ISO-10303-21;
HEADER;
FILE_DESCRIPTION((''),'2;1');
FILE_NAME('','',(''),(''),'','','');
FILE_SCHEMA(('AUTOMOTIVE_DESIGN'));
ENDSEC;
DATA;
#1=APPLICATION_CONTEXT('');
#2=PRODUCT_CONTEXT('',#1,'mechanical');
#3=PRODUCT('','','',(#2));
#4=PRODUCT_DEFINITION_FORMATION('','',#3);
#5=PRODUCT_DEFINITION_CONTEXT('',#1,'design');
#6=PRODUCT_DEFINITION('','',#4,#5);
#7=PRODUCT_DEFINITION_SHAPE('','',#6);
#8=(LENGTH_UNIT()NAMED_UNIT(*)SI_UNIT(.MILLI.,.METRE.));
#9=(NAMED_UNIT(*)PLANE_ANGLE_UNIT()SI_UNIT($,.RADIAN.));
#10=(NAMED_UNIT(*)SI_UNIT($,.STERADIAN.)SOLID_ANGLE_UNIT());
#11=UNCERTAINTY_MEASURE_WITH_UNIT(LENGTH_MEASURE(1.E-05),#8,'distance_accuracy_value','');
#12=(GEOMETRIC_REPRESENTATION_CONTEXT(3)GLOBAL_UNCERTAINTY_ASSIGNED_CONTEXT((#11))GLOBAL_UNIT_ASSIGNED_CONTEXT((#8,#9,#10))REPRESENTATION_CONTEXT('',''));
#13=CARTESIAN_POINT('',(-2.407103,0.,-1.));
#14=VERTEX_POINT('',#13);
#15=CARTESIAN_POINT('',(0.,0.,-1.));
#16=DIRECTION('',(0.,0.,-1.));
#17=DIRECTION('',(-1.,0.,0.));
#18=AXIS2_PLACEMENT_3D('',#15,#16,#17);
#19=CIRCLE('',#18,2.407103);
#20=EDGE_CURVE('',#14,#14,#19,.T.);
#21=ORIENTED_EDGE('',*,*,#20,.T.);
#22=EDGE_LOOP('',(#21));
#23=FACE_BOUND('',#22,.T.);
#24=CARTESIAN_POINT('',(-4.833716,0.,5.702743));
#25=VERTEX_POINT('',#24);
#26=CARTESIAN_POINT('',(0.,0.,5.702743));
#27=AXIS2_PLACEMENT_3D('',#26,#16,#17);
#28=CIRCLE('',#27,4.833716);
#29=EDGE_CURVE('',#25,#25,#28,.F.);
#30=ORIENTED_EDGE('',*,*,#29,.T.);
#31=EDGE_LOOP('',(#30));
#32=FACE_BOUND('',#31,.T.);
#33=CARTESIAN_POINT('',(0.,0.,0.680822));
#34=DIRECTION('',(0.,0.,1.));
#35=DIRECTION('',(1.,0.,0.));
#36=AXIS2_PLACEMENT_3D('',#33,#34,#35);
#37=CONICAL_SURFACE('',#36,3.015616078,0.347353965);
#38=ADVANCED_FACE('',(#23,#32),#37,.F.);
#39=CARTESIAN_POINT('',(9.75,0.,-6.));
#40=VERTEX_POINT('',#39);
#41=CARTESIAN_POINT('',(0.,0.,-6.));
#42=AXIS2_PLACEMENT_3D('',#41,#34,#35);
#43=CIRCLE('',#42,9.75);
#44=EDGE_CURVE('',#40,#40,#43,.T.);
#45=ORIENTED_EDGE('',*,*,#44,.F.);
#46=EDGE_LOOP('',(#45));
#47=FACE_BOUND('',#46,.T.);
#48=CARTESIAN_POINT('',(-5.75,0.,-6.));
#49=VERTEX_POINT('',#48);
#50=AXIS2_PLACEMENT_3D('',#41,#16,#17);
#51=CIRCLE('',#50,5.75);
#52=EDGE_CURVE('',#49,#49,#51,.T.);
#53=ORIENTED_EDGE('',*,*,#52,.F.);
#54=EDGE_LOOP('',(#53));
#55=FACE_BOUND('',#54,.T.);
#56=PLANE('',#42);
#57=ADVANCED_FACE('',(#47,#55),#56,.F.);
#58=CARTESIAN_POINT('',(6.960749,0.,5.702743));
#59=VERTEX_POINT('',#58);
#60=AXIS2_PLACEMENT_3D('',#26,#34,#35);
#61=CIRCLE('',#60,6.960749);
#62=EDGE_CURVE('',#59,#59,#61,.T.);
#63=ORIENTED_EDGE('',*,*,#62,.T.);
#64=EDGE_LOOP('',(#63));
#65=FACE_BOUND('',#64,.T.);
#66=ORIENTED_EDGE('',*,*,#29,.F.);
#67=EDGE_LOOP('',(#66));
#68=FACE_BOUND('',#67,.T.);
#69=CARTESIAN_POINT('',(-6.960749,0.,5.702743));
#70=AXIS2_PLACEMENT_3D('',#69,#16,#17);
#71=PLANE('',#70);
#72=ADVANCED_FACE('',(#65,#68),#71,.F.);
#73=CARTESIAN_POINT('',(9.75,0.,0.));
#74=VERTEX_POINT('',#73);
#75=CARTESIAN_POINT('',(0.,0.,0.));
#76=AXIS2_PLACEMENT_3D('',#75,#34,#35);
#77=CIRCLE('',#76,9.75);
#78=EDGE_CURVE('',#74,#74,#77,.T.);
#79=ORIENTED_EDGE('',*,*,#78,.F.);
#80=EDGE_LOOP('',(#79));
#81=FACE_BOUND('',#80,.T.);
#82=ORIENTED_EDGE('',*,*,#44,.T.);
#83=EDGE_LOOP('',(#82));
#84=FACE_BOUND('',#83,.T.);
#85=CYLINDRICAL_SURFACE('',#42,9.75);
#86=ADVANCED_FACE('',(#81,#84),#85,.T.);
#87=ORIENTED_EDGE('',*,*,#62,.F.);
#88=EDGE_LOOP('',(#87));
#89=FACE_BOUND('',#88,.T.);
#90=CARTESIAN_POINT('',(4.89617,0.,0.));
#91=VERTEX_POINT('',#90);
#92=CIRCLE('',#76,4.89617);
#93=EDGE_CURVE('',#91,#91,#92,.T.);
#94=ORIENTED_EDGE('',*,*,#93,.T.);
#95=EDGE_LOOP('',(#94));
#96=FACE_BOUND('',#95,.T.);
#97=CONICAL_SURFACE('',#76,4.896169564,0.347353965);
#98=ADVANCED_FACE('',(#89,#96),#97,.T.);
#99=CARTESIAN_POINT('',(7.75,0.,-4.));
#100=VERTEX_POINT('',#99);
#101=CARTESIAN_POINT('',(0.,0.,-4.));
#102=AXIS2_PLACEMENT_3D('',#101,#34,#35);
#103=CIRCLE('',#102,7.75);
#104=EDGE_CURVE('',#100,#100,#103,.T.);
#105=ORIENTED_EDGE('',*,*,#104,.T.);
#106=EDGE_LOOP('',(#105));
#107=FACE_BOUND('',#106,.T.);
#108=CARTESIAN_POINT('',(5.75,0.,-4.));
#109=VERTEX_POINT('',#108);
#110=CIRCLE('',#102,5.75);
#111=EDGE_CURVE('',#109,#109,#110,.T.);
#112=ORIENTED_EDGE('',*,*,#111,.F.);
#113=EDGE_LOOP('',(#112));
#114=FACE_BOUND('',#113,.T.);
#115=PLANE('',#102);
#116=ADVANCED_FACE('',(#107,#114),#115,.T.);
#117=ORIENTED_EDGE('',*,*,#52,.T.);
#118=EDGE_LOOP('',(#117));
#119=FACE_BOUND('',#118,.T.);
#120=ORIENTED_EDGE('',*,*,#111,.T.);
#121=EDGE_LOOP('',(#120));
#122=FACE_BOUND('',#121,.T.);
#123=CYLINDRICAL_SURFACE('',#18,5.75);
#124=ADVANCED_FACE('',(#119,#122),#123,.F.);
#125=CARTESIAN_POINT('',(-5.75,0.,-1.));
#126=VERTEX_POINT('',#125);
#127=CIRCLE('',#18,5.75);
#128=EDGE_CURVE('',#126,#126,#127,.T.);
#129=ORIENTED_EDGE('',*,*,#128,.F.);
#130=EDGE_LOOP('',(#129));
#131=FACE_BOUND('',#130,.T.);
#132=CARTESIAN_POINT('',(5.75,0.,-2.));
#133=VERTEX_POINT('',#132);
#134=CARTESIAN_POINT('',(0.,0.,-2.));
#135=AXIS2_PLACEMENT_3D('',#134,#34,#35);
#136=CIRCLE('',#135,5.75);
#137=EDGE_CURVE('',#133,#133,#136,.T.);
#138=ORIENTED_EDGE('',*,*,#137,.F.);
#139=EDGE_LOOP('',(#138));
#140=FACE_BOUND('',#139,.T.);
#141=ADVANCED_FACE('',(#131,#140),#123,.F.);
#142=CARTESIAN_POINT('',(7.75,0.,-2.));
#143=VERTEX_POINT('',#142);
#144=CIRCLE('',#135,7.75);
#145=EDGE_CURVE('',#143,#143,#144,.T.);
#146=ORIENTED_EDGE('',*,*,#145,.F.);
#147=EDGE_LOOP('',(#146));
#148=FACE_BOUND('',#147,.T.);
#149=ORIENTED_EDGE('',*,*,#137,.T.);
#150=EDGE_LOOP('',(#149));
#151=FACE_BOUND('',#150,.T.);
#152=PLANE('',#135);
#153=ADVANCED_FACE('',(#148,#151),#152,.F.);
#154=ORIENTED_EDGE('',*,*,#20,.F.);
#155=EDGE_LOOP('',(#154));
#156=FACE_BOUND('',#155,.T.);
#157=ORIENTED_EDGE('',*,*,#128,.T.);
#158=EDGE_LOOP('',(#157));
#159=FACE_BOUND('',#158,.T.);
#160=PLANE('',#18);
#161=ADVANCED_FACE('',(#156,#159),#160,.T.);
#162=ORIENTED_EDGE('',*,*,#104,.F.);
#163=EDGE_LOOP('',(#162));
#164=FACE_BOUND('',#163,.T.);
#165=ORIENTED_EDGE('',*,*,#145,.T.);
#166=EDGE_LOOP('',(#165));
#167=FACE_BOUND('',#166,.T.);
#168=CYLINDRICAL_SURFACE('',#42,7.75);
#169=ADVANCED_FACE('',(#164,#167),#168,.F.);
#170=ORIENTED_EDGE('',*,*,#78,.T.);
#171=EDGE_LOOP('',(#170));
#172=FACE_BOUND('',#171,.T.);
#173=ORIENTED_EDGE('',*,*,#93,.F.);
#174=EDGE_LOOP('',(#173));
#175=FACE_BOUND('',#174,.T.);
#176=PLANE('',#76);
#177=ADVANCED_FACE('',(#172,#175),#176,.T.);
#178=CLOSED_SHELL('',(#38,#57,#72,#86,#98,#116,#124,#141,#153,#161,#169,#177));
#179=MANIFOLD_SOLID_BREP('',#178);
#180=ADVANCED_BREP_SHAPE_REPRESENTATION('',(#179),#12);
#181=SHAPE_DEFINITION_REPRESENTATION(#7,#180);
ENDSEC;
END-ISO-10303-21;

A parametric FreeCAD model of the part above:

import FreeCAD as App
import Part
import Sketcher

V = App.Vector
Q = App.Units.Quantity


def faces_at(feature, points):
    """Names of the faces that lie closest to the given points."""
    faces = feature.Shape.Faces
    near = lambda p: min(range(len(faces)), key=lambda i: faces[i].distToShape(Part.Vertex(*p))[0])
    return sorted({f"Face{near(p) + 1}" for p in points})


def add_polygon(sketch, points):
    """Adds a closed chain of lines whose ends are joined by coincident constraints."""
    first, n = sketch.GeometryCount, len(points)
    for a, b in zip(points, points[1:] + points[:1]):
        sketch.addGeometry(Part.LineSegment(App.Vector(*a, 0), App.Vector(*b, 0)), False)
    for i in range(n):
        sketch.addConstraint(Sketcher.Constraint("Coincident", first + i, 2, first + (i + 1) % n, 1))

doc = App.newDocument("Part")
body = doc.addObject("PartDesign::Body", "Body")

# Sketch on XY plane
sketch1 = body.newObject("Sketcher::SketchObject", "Sketch")
sketch1.AttachmentSupport = (doc.getObject("XY_Plane"), [""])
sketch1.MapMode = "FlatFace"
sketch1.addGeometry(Part.Circle(V(0, 0, 0), V(0, 0, 1), 9.75), False)
sketch1.addConstraint(Sketcher.Constraint("Coincident", 0, 3, -1, 1))
sketch1.addConstraint(Sketcher.Constraint("Diameter", 0, Q("19.5 mm")))
pad1 = body.newObject("PartDesign::Pad", "Pad")
pad1.Profile = sketch1
pad1.Length = 6
pad1.Reversed = True

# Sketch on XZ plane
sketch2 = body.newObject("Sketcher::SketchObject", "Sketch001")
sketch2.AttachmentSupport = (doc.getObject("XZ_Plane"), [""])
sketch2.MapMode = "FlatFace"
add_polygon(sketch2, [(0, 0), (-4.89617, 0), (-6.960749, 5.702743), (0, 5.702743)])  # lines 0-3
sketch2.addConstraint(Sketcher.Constraint("Horizontal", 0))
sketch2.addConstraint(Sketcher.Constraint("Horizontal", 2))
sketch2.addConstraint(Sketcher.Constraint("Vertical", 3))
sketch2.addConstraint(Sketcher.Constraint("Coincident", 3, 2, -1, 1))
sketch2.addConstraint(Sketcher.Constraint("DistanceX", 0, 2, 0, 1, Q("4.89617 mm")))
sketch2.addConstraint(Sketcher.Constraint("DistanceX", 2, 1, 2, 2, Q("6.960749 mm")))
sketch2.addConstraint(Sketcher.Constraint("DistanceY", 3, 2, 3, 1, Q("5.702743 mm")))
revolution = body.newObject("PartDesign::Revolution", "Revolution")
revolution.Profile = sketch2
revolution.ReferenceAxis = (sketch2, ["V_Axis"])
revolution.Angle = 360
doc.recompute()

thickness = body.newObject("PartDesign::Thickness", "Thickness")
thickness.Base = (revolution, faces_at(revolution, [(0, 0, 5.703)]))
thickness.Value = 2
thickness.Reversed = True
thickness.Join = "Intersection"

# Sketch on XY plane
sketch3 = body.newObject("Sketcher::SketchObject", "Sketch002")
sketch3.AttachmentSupport = (doc.getObject("XY_Plane"), [""])
sketch3.MapMode = "FlatFace"
sketch3.AttachmentOffset = App.Placement(V(0, 0, -4), App.Rotation())
sketch3.addGeometry(Part.Circle(V(0, 0, 0), V(0, 0, 1), 2.045071), False)
sketch3.addConstraint(Sketcher.Constraint("Coincident", 0, 3, -1, 1))
sketch3.addConstraint(Sketcher.Constraint("Diameter", 0, Q("4.090141 mm")))
pocket1 = body.newObject("PartDesign::Pocket", "Pocket")
pocket1.Profile = sketch3
pocket1.Type = "ThroughAll"

# Sketch on XY plane
sketch4 = body.newObject("Sketcher::SketchObject", "Sketch003")
sketch4.AttachmentSupport = (doc.getObject("XY_Plane"), [""])
sketch4.MapMode = "FlatFace"
sketch4.AttachmentOffset = App.Placement(V(0, 0, -6), App.Rotation())
sketch4.addGeometry(Part.Circle(V(0, 0, 0), V(0, 0, 1), 5.75), False)
sketch4.addConstraint(Sketcher.Constraint("Coincident", 0, 3, -1, 1))
sketch4.addConstraint(Sketcher.Constraint("Diameter", 0, Q("11.5 mm")))
pocket2 = body.newObject("PartDesign::Pocket", "Pocket001")
pocket2.Profile = sketch4
pocket2.Length = 5
pocket2.Reversed = True

doc.recompute()
